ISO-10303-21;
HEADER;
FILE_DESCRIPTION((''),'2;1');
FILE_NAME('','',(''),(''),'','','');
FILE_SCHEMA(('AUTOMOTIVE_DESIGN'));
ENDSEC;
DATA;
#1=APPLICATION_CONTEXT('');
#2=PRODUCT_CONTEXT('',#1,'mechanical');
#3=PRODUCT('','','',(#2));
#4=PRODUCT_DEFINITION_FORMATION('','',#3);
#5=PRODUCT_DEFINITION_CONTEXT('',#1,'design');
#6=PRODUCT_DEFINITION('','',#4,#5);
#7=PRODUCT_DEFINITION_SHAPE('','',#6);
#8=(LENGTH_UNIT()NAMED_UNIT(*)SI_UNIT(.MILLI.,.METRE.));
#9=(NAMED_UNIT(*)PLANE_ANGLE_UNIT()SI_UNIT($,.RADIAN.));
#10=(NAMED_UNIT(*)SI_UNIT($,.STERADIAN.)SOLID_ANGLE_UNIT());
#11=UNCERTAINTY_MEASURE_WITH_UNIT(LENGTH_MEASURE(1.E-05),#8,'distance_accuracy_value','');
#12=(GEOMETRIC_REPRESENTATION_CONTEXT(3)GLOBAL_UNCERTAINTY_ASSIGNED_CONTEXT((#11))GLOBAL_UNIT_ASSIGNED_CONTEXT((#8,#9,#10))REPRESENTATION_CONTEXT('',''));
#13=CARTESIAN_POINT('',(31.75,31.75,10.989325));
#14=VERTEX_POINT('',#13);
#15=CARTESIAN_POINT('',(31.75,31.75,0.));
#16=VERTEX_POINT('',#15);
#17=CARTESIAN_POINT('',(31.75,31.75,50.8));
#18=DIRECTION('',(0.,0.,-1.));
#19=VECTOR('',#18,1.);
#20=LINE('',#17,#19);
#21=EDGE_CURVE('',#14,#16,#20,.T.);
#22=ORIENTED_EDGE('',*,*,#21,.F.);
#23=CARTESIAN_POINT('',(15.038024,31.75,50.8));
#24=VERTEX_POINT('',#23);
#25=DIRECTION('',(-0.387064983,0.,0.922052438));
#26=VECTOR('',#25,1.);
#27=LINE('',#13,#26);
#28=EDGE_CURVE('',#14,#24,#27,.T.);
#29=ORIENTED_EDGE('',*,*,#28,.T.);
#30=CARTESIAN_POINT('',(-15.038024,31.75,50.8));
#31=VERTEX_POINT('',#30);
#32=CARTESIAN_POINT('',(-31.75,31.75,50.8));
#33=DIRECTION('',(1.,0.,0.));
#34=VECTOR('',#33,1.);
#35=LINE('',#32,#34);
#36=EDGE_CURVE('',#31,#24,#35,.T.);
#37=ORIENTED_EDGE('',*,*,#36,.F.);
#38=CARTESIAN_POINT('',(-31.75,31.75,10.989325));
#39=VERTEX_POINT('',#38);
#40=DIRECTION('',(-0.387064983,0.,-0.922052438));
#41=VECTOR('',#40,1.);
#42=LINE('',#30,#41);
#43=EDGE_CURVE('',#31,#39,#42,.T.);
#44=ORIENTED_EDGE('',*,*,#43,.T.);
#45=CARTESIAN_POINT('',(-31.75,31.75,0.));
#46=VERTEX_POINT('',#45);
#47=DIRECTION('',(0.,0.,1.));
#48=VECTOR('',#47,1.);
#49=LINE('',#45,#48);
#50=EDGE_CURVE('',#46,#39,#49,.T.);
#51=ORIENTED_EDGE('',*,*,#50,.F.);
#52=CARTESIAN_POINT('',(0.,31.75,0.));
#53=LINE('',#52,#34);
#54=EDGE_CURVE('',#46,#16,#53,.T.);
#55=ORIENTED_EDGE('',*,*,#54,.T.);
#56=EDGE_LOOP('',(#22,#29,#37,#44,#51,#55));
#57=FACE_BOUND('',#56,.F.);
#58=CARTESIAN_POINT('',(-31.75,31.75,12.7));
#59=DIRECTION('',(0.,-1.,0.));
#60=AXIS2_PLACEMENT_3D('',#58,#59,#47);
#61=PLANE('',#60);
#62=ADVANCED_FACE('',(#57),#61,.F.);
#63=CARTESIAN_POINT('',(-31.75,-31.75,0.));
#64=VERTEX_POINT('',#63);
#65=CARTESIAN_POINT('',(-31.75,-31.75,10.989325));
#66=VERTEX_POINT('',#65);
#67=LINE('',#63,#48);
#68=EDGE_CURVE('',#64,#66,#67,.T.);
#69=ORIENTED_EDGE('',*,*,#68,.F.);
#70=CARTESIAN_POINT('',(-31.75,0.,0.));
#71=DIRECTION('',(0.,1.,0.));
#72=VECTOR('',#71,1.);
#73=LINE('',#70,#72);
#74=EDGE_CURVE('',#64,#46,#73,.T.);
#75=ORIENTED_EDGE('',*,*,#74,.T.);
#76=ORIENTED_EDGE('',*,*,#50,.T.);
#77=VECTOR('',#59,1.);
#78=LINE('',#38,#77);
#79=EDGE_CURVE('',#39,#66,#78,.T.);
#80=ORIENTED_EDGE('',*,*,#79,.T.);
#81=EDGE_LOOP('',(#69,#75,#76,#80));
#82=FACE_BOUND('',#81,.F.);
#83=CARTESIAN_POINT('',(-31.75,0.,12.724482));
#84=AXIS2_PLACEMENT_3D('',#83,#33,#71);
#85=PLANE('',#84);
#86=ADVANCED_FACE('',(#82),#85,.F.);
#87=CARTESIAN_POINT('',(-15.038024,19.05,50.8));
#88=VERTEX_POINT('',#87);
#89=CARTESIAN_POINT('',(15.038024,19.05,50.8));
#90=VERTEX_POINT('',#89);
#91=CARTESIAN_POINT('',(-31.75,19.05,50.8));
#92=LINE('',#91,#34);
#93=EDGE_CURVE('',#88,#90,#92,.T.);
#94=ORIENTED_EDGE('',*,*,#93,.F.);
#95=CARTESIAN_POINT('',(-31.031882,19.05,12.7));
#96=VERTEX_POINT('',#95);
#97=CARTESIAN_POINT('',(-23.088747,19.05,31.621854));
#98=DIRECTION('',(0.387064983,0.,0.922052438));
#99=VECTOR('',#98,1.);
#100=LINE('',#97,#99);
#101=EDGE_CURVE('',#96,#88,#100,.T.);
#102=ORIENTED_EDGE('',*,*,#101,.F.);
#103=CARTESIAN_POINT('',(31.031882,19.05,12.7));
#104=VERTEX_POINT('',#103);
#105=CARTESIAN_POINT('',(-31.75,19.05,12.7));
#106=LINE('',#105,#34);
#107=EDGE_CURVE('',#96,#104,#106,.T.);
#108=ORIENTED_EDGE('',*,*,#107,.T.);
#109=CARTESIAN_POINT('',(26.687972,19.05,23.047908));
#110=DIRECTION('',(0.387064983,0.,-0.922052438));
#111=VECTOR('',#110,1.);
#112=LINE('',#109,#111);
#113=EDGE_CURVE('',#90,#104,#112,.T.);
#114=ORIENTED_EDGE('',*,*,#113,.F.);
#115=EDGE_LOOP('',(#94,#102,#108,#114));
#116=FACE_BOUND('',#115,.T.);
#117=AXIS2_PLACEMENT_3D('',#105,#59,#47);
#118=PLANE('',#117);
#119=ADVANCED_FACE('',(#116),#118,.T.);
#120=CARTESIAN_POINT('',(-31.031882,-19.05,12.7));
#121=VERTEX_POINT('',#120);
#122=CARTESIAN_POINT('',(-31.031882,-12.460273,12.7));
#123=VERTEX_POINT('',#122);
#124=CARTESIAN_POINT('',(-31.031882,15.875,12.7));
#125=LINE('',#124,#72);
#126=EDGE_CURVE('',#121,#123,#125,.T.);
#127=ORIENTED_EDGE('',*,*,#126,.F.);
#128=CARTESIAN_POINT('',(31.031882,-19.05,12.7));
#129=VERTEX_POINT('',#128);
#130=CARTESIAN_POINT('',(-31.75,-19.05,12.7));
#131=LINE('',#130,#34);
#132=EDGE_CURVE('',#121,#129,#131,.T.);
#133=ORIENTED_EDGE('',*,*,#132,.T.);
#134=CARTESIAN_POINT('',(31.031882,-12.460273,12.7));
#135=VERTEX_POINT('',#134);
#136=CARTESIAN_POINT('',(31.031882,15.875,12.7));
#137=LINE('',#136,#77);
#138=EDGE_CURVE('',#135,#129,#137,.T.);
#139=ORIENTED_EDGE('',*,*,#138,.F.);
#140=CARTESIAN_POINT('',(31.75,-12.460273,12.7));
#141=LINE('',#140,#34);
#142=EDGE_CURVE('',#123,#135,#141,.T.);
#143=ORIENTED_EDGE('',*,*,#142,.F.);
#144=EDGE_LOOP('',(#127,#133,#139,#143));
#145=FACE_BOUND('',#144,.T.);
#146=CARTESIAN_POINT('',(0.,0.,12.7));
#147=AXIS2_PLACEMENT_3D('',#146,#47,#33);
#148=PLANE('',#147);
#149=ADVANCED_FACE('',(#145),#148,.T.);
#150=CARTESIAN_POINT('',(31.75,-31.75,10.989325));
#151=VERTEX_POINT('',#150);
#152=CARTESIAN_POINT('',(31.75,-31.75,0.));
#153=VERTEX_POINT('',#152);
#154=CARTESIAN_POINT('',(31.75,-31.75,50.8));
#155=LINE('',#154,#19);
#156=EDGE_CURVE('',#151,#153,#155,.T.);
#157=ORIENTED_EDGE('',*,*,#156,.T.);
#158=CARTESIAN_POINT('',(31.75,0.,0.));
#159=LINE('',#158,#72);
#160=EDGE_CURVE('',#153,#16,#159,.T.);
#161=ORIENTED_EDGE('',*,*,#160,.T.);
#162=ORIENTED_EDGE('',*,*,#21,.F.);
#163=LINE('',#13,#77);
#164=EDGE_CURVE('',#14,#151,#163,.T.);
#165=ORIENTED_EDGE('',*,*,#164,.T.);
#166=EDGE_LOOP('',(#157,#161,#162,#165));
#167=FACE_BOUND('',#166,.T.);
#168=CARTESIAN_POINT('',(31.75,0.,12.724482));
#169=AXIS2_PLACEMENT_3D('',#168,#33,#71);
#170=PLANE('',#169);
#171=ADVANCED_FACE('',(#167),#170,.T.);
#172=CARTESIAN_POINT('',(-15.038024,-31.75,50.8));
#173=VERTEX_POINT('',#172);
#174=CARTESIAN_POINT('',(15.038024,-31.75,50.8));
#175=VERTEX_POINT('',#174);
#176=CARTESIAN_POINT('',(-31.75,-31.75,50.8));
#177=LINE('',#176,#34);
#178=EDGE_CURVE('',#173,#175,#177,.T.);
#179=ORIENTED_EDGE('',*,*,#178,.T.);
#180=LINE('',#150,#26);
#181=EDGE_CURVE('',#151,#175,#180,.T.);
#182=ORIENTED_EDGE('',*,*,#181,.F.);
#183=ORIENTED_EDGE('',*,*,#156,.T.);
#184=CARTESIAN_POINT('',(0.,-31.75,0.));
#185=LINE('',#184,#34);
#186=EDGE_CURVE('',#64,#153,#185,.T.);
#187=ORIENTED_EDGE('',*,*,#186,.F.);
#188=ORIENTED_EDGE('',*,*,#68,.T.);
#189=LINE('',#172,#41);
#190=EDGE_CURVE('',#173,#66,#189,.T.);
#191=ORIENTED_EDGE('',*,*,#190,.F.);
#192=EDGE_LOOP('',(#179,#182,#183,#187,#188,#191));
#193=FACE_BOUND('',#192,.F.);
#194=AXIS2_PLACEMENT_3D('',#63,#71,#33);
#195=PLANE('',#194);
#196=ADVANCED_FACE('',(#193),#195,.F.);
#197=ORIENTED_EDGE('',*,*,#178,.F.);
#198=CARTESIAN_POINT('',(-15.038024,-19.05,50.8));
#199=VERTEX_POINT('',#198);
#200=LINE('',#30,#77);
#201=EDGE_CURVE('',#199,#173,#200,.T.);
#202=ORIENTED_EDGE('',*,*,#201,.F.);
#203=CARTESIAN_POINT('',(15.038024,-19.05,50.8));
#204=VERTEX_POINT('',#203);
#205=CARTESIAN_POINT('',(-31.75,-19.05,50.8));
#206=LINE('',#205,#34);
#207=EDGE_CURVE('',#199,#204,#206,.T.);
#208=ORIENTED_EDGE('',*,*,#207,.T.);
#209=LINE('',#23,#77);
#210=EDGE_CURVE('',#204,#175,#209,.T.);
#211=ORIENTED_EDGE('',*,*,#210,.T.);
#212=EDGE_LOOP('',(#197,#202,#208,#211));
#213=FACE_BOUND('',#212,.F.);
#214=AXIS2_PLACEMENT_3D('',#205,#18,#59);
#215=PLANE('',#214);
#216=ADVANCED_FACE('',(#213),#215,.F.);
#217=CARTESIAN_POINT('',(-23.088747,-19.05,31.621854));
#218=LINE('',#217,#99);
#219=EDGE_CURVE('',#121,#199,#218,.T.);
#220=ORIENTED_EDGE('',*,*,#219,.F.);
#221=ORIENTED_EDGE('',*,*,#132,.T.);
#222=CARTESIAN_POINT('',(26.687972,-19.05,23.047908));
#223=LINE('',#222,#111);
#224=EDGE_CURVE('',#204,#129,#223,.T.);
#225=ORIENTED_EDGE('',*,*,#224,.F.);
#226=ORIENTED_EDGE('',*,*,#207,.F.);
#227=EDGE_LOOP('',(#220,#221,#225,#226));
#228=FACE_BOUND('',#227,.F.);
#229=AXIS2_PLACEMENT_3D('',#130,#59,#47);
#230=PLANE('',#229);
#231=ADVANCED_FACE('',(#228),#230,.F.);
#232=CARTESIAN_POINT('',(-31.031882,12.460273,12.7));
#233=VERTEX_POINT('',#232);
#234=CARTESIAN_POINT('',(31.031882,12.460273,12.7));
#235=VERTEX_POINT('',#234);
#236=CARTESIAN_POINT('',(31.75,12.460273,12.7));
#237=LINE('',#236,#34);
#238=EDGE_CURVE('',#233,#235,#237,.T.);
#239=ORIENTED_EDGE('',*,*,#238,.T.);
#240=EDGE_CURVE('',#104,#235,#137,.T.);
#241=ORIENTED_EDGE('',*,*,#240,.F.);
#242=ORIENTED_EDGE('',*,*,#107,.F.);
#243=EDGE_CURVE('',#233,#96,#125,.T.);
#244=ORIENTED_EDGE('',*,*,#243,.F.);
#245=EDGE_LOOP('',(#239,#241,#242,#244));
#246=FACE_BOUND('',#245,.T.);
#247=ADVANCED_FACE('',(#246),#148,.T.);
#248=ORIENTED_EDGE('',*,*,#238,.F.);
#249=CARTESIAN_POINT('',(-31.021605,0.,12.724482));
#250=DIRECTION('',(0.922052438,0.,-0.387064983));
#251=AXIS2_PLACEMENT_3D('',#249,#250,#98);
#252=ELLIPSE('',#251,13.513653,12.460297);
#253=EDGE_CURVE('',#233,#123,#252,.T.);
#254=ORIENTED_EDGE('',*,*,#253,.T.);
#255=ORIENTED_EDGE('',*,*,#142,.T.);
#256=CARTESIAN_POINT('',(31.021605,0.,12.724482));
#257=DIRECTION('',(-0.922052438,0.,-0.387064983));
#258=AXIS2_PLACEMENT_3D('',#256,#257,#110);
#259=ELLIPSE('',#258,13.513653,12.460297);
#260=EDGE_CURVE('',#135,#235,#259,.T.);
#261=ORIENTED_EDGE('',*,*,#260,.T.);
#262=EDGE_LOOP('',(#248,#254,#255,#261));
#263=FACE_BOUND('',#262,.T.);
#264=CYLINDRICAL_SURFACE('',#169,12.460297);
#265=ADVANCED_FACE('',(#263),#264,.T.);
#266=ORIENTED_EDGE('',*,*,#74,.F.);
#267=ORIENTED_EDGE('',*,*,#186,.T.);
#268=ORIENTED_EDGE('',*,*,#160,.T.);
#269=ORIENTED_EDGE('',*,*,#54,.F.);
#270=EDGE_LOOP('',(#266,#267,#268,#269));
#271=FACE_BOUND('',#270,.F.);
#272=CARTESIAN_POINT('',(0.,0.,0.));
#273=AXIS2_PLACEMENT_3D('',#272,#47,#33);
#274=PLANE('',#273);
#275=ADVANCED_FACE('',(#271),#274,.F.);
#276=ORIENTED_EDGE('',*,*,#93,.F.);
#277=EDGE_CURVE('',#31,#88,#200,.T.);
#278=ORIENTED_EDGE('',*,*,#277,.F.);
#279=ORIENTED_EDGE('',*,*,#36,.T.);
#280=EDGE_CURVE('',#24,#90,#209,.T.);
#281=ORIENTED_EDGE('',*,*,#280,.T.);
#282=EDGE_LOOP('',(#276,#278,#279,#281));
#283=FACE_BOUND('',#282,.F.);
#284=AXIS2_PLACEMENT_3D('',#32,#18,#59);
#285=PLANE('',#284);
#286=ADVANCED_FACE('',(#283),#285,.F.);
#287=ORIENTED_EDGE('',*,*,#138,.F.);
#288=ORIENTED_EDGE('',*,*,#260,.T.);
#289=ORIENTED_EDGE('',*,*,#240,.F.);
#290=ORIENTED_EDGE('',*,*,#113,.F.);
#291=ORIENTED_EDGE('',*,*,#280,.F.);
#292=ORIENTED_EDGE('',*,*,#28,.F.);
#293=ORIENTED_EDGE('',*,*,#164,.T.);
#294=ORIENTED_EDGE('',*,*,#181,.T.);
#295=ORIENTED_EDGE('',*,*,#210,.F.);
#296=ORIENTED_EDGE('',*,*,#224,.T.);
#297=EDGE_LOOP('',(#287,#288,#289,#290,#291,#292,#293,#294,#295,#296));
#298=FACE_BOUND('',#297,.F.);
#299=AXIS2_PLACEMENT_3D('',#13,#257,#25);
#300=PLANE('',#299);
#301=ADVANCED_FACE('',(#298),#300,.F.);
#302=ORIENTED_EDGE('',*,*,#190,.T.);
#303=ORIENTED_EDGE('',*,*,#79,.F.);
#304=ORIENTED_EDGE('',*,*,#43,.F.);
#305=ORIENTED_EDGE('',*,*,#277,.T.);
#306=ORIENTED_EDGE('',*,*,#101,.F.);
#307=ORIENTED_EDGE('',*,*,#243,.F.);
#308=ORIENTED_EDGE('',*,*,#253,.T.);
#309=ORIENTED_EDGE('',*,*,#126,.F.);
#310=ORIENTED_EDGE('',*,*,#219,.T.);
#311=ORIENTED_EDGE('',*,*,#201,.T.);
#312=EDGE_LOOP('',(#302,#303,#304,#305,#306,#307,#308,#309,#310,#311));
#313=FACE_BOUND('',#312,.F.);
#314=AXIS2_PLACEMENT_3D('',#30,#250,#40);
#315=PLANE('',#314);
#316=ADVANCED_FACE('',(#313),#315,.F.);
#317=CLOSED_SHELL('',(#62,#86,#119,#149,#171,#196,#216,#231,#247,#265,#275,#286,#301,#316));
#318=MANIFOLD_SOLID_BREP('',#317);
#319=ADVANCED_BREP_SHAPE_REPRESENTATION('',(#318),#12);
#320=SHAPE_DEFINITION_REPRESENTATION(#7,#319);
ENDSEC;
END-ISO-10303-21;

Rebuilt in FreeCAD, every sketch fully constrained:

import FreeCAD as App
import Part
import Sketcher
Q = App.Units.Quantity


def add_polygon(sketch, points):
    """Adds a closed chain of lines whose ends are joined by coincident constraints."""
    first, n = sketch.GeometryCount, len(points)
    for a, b in zip(points, points[1:] + points[:1]):
        sketch.addGeometry(Part.LineSegment(App.Vector(*a, 0), App.Vector(*b, 0)), False)
    for i in range(n):
        sketch.addConstraint(Sketcher.Constraint("Coincident", first + i, 2, first + (i + 1) % n, 1))

doc = App.newDocument("Part")
body = doc.addObject("PartDesign::Body", "Body")

sketch1 = body.newObject("Sketcher::SketchObject", "Sketch")
sketch1.AttachmentSupport = (doc.getObject("XY_Plane"), [""])
sketch1.MapMode = "FlatFace"
add_polygon(sketch1, [(-32, 32), (-32, -32), (32, -32), (32, 32)])
sketch1.addConstraint([
    Sketcher.Constraint("Vertical", 0),
    Sketcher.Constraint("Horizontal", 1),
    Sketcher.Constraint("Vertical", 2),
    Sketcher.Constraint("Horizontal", 3),
    Sketcher.Constraint("Symmetric", 0, 2, 2, 2, -1, 1),
    Sketcher.Constraint("Equal", 3, 0),
    Sketcher.Constraint("DistanceX", 1, 1, 1, 2, Q("2.5 in")),
])
pad1 = body.newObject("PartDesign::Pad", "Pad")
pad1.Profile = sketch1
pad1.Length = Q("0.5 in")

sketch2 = body.newObject("Sketcher::SketchObject", "Sketch001")
sketch2.AttachmentSupport = (doc.getObject("YZ_Plane"), [""])
sketch2.MapMode = "FlatFace"
sketch2.AttachmentOffset = App.Placement(App.Vector(0, 0, -1.25 * 25.4), App.Rotation())
add_polygon(sketch2, [(32, 51), (32, 13), (19, 13), (19, 51)])
add_polygon(sketch2, [(-19, 51), (-19, 13), (-32, 13), (-32, 51)])
sketch2.addConstraint([
    Sketcher.Constraint("Vertical", 0),
    Sketcher.Constraint("Horizontal", 1),
    Sketcher.Constraint("Vertical", 2),
    Sketcher.Constraint("Horizontal", 3),
    Sketcher.Constraint("Vertical", 4),
    Sketcher.Constraint("Horizontal", 5),
    Sketcher.Constraint("Vertical", 6),
    Sketcher.Constraint("Horizontal", 7),
    Sketcher.Constraint("Symmetric", 1, 2, 4, 2, -2),
    Sketcher.Constraint("Symmetric", 3, 2, 6, 2, -2),
    Sketcher.Constraint("DistanceX", 1, 2, 1, 1, Q("0.5 in")),
    Sketcher.Constraint("DistanceY", 0, 2, 0, 1, Q("1.5 in")),
    Sketcher.Constraint("DistanceY", -1, 1, 2, 2, Q("2 in")),
    Sketcher.Constraint("DistanceX", 4, 2, 0, 2, Q("2 in")),
])
pad2 = body.newObject("PartDesign::Pad", "Pad001")
pad2.Profile = sketch2
pad2.Length = Q("2.5 in")

sketch3 = body.newObject("Sketcher::SketchObject", "Sketch002")
sketch3.AttachmentSupport = (doc.getObject("YZ_Plane"), [""])
sketch3.MapMode = "FlatFace"
sketch3.AttachmentOffset = App.Placement(App.Vector(0, 0, 1.25 * 25.4), App.Rotation())
sketch3.addGeometry(Part.Circle(App.Vector(0, 13, 0), App.Vector(0, 0, 1), 12), False)
sketch3.addConstraint([
    Sketcher.Constraint("PointOnObject", 0, 3, -2),
    Sketcher.Constraint("Diameter", 0, Q("24.920594 mm")),
    Sketcher.Constraint("DistanceY", -1, 1, 0, 3, Q("12.724482 mm")),
])
pad3 = body.newObject("PartDesign::Pad", "Pad002")
pad3.Profile = sketch3
pad3.Length = Q("2.5 in")
pad3.Reversed = True

sketch4 = body.newObject("Sketcher::SketchObject", "Sketch003")
sketch4.AttachmentSupport = (doc.getObject("XZ_Plane"), [""])
sketch4.MapMode = "FlatFace"
sketch4.AttachmentOffset = App.Placement(App.Vector(0, 0, -1.25 * 25.4), App.Rotation())
add_polygon(sketch4, [(32, 51), (32, 11), (15, 51)])
add_polygon(sketch4, [(-15, 51), (-32, 11), (-32, 51)])
sketch4.addConstraint([
    Sketcher.Constraint("Vertical", 0),
    Sketcher.Constraint("Horizontal", 2),
    Sketcher.Constraint("Vertical", 4),
    Sketcher.Constraint("Horizontal", 5),
    Sketcher.Constraint("Symmetric", 0, 2, 3, 2, -2),
    Sketcher.Constraint("Symmetric", 1, 2, 5, 2, -2),
    Sketcher.Constraint("DistanceY", -1, 1, 1, 2, Q("2 in")),
    Sketcher.Constraint("DistanceX", 3, 2, 0, 2, Q("2.5 in")),
    Sketcher.Constraint("Distance", 1, Q("43.176151 mm")),
    Sketcher.Constraint("DistanceX", 2, 1, 2, 2, Q("16.711976 mm")),
])
pocket1 = body.newObject("PartDesign::Pocket", "Pocket")
pocket1.Profile = sketch4
pocket1.Length = Q("2.5 in")
pocket1.Reversed = True

doc.recompute()
